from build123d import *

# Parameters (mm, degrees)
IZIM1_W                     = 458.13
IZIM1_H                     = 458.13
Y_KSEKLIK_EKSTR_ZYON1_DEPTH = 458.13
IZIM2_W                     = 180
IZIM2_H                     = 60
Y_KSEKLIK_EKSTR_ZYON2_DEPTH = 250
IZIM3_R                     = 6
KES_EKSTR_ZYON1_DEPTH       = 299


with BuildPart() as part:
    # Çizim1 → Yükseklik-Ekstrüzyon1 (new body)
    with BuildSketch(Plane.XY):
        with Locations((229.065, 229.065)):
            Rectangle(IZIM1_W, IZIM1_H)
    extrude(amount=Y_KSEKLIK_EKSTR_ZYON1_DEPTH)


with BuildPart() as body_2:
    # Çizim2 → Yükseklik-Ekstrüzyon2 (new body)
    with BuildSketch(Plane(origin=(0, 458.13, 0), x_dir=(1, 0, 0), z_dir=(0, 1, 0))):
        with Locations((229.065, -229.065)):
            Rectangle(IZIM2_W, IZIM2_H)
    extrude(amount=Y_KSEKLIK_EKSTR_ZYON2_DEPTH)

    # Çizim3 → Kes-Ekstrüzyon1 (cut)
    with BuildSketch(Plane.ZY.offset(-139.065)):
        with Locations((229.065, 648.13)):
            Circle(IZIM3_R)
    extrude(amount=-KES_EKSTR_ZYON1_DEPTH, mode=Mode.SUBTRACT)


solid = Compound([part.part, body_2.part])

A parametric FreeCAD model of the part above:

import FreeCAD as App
import Part
import Sketcher

V = App.Vector


def add_polygon(sketch, points):
    """Adds a closed chain of lines whose ends are joined by coincident constraints."""
    first, n = sketch.GeometryCount, len(points)
    for a, b in zip(points, points[1:] + points[:1]):
        sketch.addGeometry(Part.LineSegment(App.Vector(*a, 0), App.Vector(*b, 0)), False)
    for i in range(n):
        sketch.addConstraint(Sketcher.Constraint("Coincident", first + i, 2, first + (i + 1) % n, 1))

doc = App.newDocument("Part")
body = doc.addObject("PartDesign::Body", "Body")

sketch1 = body.newObject("Sketcher::SketchObject", "Sketch")
sketch1.AttachmentSupport = (doc.getObject("XY_Plane"), [""])
sketch1.MapMode = "FlatFace"
add_polygon(sketch1, [(0, 458), (0, 0), (458, 0), (458, 458)])
sketch1.addConstraint([
    Sketcher.Constraint("Vertical", 0),
    Sketcher.Constraint("Horizontal", 1),
    Sketcher.Constraint("Vertical", 2),
    Sketcher.Constraint("Horizontal", 3),
    Sketcher.Constraint("Coincident", 0, 2, -1, 1),
    Sketcher.Constraint("Equal", 3, 0),
    Sketcher.Constraint("DistanceX", 1, 1, 1, 2, 458.13),
])
pad1 = body.newObject("PartDesign::Pad", "Pad")
pad1.Profile = sketch1
pad1.Length = 458.13
body2 = doc.addObject("PartDesign::Body", "Body001")

sketch2 = body2.newObject("Sketcher::SketchObject", "Sketch001")
sketch2.AttachmentSupport = (doc.getObject("XZ_Plane001"), [""])
sketch2.MapMode = "FlatFace"
sketch2.AttachmentOffset = App.Placement(V(0, 0, -458.13), App.Rotation())
add_polygon(sketch2, [(139, 199), (139, 259), (319, 259), (319, 199)])
sketch2.addConstraint([
    Sketcher.Constraint("Vertical", 0),
    Sketcher.Constraint("Horizontal", 1),
    Sketcher.Constraint("Vertical", 2),
    Sketcher.Constraint("Horizontal", 3),
    Sketcher.Constraint("DistanceX", 1, 1, 1, 2, 180.0),
    Sketcher.Constraint("DistanceY", 0, 1, 0, 2, 60.0),
    Sketcher.Constraint("DistanceX", -1, 1, 0, 2, 139.065),
    Sketcher.Constraint("DistanceY", -1, 1, 0, 2, 259.065),
])
pad2 = body2.newObject("PartDesign::Pad", "Pad001")
pad2.Profile = sketch2
pad2.Length = 250
pad2.Reversed = True

sketch3 = body2.newObject("Sketcher::SketchObject", "Sketch002")
sketch3.AttachmentSupport = (doc.getObject("YZ_Plane001"), [""])
sketch3.MapMode = "FlatFace"
sketch3.AttachmentOffset = App.Placement(V(0, 0, 139.065), App.Rotation())
sketch3.addGeometry(Part.Circle(V(648, 229, 0), V(0, 0, 1), 6), False)
sketch3.addConstraint([
    Sketcher.Constraint("Diameter", 0, 12.0),
    Sketcher.Constraint("DistanceX", -1, 1, 0, 3, 648.13),
    Sketcher.Constraint("DistanceY", -1, 1, 0, 3, 229.065),
])
pocket1 = body2.newObject("PartDesign::Pocket", "Pocket")
pocket1.Profile = sketch3
pocket1.Length = 299
pocket1.Reversed = True

doc.recompute()
